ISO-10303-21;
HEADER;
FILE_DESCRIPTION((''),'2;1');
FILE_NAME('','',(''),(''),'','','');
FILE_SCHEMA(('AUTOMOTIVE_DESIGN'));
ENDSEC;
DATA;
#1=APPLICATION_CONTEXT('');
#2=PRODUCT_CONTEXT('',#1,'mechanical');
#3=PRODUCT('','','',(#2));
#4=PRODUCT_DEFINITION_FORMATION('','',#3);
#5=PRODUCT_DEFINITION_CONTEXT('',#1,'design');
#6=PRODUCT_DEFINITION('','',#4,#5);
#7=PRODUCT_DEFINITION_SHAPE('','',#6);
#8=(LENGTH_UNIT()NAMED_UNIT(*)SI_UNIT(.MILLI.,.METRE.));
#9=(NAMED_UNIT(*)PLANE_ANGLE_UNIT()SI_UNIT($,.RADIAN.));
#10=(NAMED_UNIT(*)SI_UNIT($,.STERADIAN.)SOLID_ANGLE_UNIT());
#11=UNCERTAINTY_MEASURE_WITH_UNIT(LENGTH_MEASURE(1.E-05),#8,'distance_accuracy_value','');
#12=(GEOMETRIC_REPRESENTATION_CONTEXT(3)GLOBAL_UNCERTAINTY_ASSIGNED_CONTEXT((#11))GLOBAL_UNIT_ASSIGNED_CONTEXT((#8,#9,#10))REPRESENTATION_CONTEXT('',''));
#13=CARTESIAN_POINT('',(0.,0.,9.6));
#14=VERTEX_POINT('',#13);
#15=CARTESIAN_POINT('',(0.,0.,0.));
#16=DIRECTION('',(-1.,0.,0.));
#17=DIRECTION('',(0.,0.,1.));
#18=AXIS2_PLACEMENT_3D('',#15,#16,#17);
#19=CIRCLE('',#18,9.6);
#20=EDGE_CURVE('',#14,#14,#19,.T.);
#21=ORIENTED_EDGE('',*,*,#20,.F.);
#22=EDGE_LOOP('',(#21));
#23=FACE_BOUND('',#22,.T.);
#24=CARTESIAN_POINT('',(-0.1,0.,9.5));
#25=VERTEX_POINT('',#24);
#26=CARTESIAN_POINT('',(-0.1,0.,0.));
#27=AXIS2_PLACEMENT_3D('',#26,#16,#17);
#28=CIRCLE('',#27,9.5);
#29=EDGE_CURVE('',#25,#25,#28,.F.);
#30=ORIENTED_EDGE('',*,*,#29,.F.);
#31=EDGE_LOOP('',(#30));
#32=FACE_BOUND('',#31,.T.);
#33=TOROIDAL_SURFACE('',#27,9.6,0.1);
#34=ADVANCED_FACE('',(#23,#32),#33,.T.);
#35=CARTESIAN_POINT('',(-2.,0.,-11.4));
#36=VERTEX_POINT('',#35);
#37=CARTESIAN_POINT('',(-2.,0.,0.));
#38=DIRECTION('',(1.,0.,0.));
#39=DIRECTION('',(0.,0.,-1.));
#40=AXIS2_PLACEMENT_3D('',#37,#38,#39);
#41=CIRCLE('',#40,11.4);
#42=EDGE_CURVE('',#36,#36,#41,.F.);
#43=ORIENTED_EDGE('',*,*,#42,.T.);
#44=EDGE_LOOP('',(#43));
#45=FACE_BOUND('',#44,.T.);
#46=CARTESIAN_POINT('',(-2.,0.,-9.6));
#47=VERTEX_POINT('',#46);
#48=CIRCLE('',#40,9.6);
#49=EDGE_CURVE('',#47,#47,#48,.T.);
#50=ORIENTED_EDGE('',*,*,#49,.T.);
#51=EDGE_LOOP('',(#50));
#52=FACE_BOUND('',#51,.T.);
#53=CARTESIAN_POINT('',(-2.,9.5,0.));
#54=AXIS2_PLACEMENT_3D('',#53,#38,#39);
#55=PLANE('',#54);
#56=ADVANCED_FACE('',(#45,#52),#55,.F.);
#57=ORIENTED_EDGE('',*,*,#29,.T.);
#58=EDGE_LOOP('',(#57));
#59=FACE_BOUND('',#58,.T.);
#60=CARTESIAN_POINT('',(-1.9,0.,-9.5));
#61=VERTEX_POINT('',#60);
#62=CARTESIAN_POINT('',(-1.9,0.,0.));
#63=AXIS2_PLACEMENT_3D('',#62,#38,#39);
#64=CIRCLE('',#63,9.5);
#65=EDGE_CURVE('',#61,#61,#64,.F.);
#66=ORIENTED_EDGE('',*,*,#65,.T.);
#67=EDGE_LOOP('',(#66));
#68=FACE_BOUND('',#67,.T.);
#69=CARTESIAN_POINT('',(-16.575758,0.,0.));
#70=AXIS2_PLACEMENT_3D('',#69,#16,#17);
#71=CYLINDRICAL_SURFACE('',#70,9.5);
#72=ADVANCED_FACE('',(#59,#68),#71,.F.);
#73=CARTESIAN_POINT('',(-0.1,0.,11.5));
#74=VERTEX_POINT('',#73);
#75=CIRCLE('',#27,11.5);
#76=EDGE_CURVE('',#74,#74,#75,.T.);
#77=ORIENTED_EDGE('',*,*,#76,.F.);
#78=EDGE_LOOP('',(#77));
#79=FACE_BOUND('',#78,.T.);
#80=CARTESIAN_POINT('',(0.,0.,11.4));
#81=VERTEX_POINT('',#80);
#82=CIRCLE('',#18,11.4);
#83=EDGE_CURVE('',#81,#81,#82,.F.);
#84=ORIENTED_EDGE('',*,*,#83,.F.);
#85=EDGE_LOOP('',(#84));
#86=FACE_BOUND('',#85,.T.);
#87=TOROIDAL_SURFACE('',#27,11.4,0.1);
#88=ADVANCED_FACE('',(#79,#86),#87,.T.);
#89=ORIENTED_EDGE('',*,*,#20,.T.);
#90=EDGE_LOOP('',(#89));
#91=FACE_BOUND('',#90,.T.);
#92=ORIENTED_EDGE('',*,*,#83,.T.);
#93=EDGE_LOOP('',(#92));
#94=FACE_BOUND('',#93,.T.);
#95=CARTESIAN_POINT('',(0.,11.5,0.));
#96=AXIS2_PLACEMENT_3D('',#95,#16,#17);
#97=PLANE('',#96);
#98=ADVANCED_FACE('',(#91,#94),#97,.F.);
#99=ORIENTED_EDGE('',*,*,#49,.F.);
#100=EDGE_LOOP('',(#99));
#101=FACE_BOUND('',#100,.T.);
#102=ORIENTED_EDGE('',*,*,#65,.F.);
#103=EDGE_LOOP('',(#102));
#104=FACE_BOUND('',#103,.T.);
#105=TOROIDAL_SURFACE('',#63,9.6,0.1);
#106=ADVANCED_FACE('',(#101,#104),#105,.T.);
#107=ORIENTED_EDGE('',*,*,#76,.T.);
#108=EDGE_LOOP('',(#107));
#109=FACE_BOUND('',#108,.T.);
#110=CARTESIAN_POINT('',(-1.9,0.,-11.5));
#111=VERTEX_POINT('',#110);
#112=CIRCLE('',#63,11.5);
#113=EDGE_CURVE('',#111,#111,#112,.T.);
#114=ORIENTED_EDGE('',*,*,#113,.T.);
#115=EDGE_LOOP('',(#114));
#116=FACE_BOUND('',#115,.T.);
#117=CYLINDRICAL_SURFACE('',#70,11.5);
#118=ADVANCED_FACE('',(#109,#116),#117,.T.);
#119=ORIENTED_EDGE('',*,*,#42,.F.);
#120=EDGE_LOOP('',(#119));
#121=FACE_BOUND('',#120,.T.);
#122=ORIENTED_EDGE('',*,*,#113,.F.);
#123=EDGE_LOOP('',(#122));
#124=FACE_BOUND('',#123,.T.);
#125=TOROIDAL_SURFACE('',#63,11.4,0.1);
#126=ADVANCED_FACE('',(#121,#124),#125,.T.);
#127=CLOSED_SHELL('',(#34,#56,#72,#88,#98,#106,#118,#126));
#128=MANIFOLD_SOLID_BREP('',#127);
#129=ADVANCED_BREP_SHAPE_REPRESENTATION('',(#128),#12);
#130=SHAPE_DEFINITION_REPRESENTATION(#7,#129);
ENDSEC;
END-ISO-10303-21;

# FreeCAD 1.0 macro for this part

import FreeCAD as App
import Part
import Sketcher


def edges_at(feature, points):
    """Names of the edges that pass closest to the given points."""
    edges = feature.Shape.Edges
    near = lambda p: min(range(len(edges)), key=lambda i: edges[i].distToShape(Part.Vertex(*p))[0])
    return sorted({f"Edge{near(p) + 1}" for p in points})

doc = App.newDocument("Part")
body = doc.addObject("PartDesign::Body", "Body")

sketch1 = body.newObject("Sketcher::SketchObject", "Sketch")
sketch1.AttachmentSupport = (doc.getObject("XY_Plane"), [""])
sketch1.MapMode = "FlatFace"
sketch1.addGeometry([
    Part.LineSegment(App.Vector(-2, 11.5, 0), App.Vector(-2, 9.5, 0)),
    Part.LineSegment(App.Vector(-2, 9.5, 0), App.Vector(0, 9.5, 0)),
    Part.LineSegment(App.Vector(0, 9.5, 0), App.Vector(0, 11.5, 0)),
    Part.LineSegment(App.Vector(0, 11.5, 0), App.Vector(-2, 11.5, 0)),
], False)
sketch1.addConstraint([
    Sketcher.Constraint("Coincident", 0, 2, 1, 1),
    Sketcher.Constraint("Coincident", 1, 2, 2, 1),
    Sketcher.Constraint("Coincident", 2, 2, 3, 1),
    Sketcher.Constraint("Coincident", 3, 2, 0, 1),
    Sketcher.Constraint("Vertical", 0),
    Sketcher.Constraint("Horizontal", 1),
    Sketcher.Constraint("Vertical", 2),
    Sketcher.Constraint("Horizontal", 3),
    Sketcher.Constraint("PointOnObject", 1, 2, -2),
    Sketcher.Constraint("Equal", 3, 0),
    Sketcher.Constraint("DistanceX", 1, 1, 1, 2, 2.0),
    Sketcher.Constraint("DistanceY", -1, 1, 0, 2, 9.5),
])
revolution = body.newObject("PartDesign::Revolution", "Revolution")
revolution.Profile = sketch1
revolution.ReferenceAxis = (sketch1, ["H_Axis"])
revolution.Angle = 360
doc.recompute()

fillet = body.newObject("PartDesign::Fillet", "Fillet")
fillet.Base = (revolution, edges_at(revolution, [
    (0, 0, -11.5),
    (-2, 0, -11.5),
    (-2, 0, -9.5),
    (0, 0, -9.5),
]))
fillet.Radius = 0.1

doc.recompute()
